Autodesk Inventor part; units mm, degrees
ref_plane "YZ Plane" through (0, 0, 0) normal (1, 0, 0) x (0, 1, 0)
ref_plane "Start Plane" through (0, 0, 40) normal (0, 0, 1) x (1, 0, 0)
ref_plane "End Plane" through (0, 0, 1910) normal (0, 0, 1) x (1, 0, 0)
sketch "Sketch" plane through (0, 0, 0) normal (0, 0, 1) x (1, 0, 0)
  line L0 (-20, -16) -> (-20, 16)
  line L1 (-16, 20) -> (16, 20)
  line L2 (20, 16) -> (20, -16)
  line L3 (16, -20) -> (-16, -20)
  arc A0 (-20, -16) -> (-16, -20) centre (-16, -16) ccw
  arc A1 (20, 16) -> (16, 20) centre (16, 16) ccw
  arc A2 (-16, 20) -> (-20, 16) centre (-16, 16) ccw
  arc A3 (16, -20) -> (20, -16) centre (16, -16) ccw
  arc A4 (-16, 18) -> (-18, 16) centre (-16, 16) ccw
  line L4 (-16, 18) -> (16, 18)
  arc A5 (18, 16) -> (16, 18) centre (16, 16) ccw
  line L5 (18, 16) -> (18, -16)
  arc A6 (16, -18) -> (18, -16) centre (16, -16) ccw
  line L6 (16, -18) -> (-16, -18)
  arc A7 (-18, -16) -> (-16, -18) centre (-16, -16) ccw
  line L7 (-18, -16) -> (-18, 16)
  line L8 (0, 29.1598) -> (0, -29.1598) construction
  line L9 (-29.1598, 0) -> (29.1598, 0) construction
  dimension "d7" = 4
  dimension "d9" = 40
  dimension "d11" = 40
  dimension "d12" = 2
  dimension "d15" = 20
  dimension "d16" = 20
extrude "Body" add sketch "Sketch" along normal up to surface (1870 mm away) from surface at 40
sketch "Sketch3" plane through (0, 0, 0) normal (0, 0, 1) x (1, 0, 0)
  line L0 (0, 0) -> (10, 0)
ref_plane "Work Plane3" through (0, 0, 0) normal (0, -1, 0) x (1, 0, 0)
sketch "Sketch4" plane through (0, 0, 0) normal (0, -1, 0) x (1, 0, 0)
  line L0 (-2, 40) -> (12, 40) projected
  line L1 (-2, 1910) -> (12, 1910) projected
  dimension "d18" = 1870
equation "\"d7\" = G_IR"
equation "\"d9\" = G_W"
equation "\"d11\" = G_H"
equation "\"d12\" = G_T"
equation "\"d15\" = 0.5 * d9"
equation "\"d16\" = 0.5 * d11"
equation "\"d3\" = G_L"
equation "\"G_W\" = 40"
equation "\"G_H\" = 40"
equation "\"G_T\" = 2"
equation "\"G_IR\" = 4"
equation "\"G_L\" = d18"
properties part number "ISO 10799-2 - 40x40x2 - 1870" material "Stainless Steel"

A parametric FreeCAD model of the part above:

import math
import FreeCAD as App
import Part
import Sketcher

doc = App.newDocument("Part")
body = doc.addObject("PartDesign::Body", "Body")

sketch1 = body.newObject("Sketcher::SketchObject", "Sketch")
sketch1.AttachmentSupport = (doc.getObject("XY_Plane"), [""])
sketch1.MapMode = "FlatFace"
sketch1.AttachmentOffset = App.Placement(App.Vector(0, 0, 40), App.Rotation())
sketch1.addGeometry([
    Part.LineSegment(App.Vector(-20, 16, 0), App.Vector(-20, -16, 0)),
    Part.ArcOfCircle(Part.Circle(App.Vector(-16, -16, 0), App.Vector(0, 0, 1), 4), math.radians(180), math.radians(270)),
    Part.LineSegment(App.Vector(-16, -20, 0), App.Vector(16, -20, 0)),
    Part.ArcOfCircle(Part.Circle(App.Vector(16, -16, 0), App.Vector(0, 0, 1), 4), math.radians(-90), math.radians(0)),
    Part.LineSegment(App.Vector(20, -16, 0), App.Vector(20, 16, 0)),
    Part.ArcOfCircle(Part.Circle(App.Vector(16, 16, 0), App.Vector(0, 0, 1), 4), math.radians(0), math.radians(90)),
    Part.LineSegment(App.Vector(16, 20, 0), App.Vector(-16, 20, 0)),
    Part.ArcOfCircle(Part.Circle(App.Vector(-16, 16, 0), App.Vector(0, 0, 1), 4), math.radians(90), math.radians(180)),
    Part.ArcOfCircle(Part.Circle(App.Vector(-16, 16, 0), App.Vector(0, 0, 1), 2), math.radians(90), math.radians(180)),
    Part.LineSegment(App.Vector(-16, 18, 0), App.Vector(16, 18, 0)),
    Part.ArcOfCircle(Part.Circle(App.Vector(16, 16, 0), App.Vector(0, 0, 1), 2), math.radians(0), math.radians(90)),
    Part.LineSegment(App.Vector(18, 16, 0), App.Vector(18, -16, 0)),
    Part.ArcOfCircle(Part.Circle(App.Vector(16, -16, 0), App.Vector(0, 0, 1), 2), math.radians(-90), math.radians(0)),
    Part.LineSegment(App.Vector(16, -18, 0), App.Vector(-16, -18, 0)),
    Part.ArcOfCircle(Part.Circle(App.Vector(-16, -16, 0), App.Vector(0, 0, 1), 2), math.radians(180), math.radians(270)),
    Part.LineSegment(App.Vector(-18, -16, 0), App.Vector(-18, 16, 0)),
], False)
sketch1.addConstraint([
    Sketcher.Constraint("Tangent", 0, 2, 1, 1),
    Sketcher.Constraint("Tangent", 1, 2, 2, 1),
    Sketcher.Constraint("Tangent", 2, 2, 3, 1),
    Sketcher.Constraint("Tangent", 3, 2, 4, 1),
    Sketcher.Constraint("Tangent", 4, 2, 5, 1),
    Sketcher.Constraint("Tangent", 5, 2, 6, 1),
    Sketcher.Constraint("Tangent", 6, 2, 7, 1),
    Sketcher.Constraint("Tangent", 7, 2, 0, 1),
    Sketcher.Constraint("Tangent", 8, 1, 9, 1),
    Sketcher.Constraint("Tangent", 9, 2, 10, 2),
    Sketcher.Constraint("Tangent", 10, 1, 11, 1),
    Sketcher.Constraint("Tangent", 11, 2, 12, 2),
    Sketcher.Constraint("Tangent", 12, 1, 13, 1),
    Sketcher.Constraint("Tangent", 13, 2, 14, 2),
    Sketcher.Constraint("Tangent", 14, 1, 15, 1),
    Sketcher.Constraint("Tangent", 15, 2, 8, 2),
    Sketcher.Constraint("Vertical", 0),
    Sketcher.Constraint("Horizontal", 2),
    Sketcher.Constraint("Vertical", 4),
    Sketcher.Constraint("Horizontal", 6),
    Sketcher.Constraint("Horizontal", 9),
    Sketcher.Constraint("Vertical", 11),
    Sketcher.Constraint("Horizontal", 13),
    Sketcher.Constraint("Vertical", 15),
    Sketcher.Constraint("Coincident", 8, 3, 7, 3),
    Sketcher.Constraint("Coincident", 10, 3, 5, 3),
    Sketcher.Constraint("Coincident", 12, 3, 3, 3),
    Sketcher.Constraint("Equal", 1, 3),
    Sketcher.Constraint("Equal", 3, 5),
    Sketcher.Constraint("Equal", 5, 7),
    Sketcher.Constraint("Equal", 12, 14),
    Sketcher.Constraint("Symmetric", 1, 3, 5, 3, -1, 1),
    Sketcher.Constraint("Equal", 13, 0),
    Sketcher.Constraint("Radius", 1, 4.0),
    Sketcher.Constraint("Radius", 8, 2.0),
    Sketcher.Constraint("DistanceX", 0, 2, -1, 1, 20.0),
])
pad1 = body.newObject("PartDesign::Pad", "Pad")
pad1.Profile = sketch1
pad1.Length = 1870

doc.recompute()
